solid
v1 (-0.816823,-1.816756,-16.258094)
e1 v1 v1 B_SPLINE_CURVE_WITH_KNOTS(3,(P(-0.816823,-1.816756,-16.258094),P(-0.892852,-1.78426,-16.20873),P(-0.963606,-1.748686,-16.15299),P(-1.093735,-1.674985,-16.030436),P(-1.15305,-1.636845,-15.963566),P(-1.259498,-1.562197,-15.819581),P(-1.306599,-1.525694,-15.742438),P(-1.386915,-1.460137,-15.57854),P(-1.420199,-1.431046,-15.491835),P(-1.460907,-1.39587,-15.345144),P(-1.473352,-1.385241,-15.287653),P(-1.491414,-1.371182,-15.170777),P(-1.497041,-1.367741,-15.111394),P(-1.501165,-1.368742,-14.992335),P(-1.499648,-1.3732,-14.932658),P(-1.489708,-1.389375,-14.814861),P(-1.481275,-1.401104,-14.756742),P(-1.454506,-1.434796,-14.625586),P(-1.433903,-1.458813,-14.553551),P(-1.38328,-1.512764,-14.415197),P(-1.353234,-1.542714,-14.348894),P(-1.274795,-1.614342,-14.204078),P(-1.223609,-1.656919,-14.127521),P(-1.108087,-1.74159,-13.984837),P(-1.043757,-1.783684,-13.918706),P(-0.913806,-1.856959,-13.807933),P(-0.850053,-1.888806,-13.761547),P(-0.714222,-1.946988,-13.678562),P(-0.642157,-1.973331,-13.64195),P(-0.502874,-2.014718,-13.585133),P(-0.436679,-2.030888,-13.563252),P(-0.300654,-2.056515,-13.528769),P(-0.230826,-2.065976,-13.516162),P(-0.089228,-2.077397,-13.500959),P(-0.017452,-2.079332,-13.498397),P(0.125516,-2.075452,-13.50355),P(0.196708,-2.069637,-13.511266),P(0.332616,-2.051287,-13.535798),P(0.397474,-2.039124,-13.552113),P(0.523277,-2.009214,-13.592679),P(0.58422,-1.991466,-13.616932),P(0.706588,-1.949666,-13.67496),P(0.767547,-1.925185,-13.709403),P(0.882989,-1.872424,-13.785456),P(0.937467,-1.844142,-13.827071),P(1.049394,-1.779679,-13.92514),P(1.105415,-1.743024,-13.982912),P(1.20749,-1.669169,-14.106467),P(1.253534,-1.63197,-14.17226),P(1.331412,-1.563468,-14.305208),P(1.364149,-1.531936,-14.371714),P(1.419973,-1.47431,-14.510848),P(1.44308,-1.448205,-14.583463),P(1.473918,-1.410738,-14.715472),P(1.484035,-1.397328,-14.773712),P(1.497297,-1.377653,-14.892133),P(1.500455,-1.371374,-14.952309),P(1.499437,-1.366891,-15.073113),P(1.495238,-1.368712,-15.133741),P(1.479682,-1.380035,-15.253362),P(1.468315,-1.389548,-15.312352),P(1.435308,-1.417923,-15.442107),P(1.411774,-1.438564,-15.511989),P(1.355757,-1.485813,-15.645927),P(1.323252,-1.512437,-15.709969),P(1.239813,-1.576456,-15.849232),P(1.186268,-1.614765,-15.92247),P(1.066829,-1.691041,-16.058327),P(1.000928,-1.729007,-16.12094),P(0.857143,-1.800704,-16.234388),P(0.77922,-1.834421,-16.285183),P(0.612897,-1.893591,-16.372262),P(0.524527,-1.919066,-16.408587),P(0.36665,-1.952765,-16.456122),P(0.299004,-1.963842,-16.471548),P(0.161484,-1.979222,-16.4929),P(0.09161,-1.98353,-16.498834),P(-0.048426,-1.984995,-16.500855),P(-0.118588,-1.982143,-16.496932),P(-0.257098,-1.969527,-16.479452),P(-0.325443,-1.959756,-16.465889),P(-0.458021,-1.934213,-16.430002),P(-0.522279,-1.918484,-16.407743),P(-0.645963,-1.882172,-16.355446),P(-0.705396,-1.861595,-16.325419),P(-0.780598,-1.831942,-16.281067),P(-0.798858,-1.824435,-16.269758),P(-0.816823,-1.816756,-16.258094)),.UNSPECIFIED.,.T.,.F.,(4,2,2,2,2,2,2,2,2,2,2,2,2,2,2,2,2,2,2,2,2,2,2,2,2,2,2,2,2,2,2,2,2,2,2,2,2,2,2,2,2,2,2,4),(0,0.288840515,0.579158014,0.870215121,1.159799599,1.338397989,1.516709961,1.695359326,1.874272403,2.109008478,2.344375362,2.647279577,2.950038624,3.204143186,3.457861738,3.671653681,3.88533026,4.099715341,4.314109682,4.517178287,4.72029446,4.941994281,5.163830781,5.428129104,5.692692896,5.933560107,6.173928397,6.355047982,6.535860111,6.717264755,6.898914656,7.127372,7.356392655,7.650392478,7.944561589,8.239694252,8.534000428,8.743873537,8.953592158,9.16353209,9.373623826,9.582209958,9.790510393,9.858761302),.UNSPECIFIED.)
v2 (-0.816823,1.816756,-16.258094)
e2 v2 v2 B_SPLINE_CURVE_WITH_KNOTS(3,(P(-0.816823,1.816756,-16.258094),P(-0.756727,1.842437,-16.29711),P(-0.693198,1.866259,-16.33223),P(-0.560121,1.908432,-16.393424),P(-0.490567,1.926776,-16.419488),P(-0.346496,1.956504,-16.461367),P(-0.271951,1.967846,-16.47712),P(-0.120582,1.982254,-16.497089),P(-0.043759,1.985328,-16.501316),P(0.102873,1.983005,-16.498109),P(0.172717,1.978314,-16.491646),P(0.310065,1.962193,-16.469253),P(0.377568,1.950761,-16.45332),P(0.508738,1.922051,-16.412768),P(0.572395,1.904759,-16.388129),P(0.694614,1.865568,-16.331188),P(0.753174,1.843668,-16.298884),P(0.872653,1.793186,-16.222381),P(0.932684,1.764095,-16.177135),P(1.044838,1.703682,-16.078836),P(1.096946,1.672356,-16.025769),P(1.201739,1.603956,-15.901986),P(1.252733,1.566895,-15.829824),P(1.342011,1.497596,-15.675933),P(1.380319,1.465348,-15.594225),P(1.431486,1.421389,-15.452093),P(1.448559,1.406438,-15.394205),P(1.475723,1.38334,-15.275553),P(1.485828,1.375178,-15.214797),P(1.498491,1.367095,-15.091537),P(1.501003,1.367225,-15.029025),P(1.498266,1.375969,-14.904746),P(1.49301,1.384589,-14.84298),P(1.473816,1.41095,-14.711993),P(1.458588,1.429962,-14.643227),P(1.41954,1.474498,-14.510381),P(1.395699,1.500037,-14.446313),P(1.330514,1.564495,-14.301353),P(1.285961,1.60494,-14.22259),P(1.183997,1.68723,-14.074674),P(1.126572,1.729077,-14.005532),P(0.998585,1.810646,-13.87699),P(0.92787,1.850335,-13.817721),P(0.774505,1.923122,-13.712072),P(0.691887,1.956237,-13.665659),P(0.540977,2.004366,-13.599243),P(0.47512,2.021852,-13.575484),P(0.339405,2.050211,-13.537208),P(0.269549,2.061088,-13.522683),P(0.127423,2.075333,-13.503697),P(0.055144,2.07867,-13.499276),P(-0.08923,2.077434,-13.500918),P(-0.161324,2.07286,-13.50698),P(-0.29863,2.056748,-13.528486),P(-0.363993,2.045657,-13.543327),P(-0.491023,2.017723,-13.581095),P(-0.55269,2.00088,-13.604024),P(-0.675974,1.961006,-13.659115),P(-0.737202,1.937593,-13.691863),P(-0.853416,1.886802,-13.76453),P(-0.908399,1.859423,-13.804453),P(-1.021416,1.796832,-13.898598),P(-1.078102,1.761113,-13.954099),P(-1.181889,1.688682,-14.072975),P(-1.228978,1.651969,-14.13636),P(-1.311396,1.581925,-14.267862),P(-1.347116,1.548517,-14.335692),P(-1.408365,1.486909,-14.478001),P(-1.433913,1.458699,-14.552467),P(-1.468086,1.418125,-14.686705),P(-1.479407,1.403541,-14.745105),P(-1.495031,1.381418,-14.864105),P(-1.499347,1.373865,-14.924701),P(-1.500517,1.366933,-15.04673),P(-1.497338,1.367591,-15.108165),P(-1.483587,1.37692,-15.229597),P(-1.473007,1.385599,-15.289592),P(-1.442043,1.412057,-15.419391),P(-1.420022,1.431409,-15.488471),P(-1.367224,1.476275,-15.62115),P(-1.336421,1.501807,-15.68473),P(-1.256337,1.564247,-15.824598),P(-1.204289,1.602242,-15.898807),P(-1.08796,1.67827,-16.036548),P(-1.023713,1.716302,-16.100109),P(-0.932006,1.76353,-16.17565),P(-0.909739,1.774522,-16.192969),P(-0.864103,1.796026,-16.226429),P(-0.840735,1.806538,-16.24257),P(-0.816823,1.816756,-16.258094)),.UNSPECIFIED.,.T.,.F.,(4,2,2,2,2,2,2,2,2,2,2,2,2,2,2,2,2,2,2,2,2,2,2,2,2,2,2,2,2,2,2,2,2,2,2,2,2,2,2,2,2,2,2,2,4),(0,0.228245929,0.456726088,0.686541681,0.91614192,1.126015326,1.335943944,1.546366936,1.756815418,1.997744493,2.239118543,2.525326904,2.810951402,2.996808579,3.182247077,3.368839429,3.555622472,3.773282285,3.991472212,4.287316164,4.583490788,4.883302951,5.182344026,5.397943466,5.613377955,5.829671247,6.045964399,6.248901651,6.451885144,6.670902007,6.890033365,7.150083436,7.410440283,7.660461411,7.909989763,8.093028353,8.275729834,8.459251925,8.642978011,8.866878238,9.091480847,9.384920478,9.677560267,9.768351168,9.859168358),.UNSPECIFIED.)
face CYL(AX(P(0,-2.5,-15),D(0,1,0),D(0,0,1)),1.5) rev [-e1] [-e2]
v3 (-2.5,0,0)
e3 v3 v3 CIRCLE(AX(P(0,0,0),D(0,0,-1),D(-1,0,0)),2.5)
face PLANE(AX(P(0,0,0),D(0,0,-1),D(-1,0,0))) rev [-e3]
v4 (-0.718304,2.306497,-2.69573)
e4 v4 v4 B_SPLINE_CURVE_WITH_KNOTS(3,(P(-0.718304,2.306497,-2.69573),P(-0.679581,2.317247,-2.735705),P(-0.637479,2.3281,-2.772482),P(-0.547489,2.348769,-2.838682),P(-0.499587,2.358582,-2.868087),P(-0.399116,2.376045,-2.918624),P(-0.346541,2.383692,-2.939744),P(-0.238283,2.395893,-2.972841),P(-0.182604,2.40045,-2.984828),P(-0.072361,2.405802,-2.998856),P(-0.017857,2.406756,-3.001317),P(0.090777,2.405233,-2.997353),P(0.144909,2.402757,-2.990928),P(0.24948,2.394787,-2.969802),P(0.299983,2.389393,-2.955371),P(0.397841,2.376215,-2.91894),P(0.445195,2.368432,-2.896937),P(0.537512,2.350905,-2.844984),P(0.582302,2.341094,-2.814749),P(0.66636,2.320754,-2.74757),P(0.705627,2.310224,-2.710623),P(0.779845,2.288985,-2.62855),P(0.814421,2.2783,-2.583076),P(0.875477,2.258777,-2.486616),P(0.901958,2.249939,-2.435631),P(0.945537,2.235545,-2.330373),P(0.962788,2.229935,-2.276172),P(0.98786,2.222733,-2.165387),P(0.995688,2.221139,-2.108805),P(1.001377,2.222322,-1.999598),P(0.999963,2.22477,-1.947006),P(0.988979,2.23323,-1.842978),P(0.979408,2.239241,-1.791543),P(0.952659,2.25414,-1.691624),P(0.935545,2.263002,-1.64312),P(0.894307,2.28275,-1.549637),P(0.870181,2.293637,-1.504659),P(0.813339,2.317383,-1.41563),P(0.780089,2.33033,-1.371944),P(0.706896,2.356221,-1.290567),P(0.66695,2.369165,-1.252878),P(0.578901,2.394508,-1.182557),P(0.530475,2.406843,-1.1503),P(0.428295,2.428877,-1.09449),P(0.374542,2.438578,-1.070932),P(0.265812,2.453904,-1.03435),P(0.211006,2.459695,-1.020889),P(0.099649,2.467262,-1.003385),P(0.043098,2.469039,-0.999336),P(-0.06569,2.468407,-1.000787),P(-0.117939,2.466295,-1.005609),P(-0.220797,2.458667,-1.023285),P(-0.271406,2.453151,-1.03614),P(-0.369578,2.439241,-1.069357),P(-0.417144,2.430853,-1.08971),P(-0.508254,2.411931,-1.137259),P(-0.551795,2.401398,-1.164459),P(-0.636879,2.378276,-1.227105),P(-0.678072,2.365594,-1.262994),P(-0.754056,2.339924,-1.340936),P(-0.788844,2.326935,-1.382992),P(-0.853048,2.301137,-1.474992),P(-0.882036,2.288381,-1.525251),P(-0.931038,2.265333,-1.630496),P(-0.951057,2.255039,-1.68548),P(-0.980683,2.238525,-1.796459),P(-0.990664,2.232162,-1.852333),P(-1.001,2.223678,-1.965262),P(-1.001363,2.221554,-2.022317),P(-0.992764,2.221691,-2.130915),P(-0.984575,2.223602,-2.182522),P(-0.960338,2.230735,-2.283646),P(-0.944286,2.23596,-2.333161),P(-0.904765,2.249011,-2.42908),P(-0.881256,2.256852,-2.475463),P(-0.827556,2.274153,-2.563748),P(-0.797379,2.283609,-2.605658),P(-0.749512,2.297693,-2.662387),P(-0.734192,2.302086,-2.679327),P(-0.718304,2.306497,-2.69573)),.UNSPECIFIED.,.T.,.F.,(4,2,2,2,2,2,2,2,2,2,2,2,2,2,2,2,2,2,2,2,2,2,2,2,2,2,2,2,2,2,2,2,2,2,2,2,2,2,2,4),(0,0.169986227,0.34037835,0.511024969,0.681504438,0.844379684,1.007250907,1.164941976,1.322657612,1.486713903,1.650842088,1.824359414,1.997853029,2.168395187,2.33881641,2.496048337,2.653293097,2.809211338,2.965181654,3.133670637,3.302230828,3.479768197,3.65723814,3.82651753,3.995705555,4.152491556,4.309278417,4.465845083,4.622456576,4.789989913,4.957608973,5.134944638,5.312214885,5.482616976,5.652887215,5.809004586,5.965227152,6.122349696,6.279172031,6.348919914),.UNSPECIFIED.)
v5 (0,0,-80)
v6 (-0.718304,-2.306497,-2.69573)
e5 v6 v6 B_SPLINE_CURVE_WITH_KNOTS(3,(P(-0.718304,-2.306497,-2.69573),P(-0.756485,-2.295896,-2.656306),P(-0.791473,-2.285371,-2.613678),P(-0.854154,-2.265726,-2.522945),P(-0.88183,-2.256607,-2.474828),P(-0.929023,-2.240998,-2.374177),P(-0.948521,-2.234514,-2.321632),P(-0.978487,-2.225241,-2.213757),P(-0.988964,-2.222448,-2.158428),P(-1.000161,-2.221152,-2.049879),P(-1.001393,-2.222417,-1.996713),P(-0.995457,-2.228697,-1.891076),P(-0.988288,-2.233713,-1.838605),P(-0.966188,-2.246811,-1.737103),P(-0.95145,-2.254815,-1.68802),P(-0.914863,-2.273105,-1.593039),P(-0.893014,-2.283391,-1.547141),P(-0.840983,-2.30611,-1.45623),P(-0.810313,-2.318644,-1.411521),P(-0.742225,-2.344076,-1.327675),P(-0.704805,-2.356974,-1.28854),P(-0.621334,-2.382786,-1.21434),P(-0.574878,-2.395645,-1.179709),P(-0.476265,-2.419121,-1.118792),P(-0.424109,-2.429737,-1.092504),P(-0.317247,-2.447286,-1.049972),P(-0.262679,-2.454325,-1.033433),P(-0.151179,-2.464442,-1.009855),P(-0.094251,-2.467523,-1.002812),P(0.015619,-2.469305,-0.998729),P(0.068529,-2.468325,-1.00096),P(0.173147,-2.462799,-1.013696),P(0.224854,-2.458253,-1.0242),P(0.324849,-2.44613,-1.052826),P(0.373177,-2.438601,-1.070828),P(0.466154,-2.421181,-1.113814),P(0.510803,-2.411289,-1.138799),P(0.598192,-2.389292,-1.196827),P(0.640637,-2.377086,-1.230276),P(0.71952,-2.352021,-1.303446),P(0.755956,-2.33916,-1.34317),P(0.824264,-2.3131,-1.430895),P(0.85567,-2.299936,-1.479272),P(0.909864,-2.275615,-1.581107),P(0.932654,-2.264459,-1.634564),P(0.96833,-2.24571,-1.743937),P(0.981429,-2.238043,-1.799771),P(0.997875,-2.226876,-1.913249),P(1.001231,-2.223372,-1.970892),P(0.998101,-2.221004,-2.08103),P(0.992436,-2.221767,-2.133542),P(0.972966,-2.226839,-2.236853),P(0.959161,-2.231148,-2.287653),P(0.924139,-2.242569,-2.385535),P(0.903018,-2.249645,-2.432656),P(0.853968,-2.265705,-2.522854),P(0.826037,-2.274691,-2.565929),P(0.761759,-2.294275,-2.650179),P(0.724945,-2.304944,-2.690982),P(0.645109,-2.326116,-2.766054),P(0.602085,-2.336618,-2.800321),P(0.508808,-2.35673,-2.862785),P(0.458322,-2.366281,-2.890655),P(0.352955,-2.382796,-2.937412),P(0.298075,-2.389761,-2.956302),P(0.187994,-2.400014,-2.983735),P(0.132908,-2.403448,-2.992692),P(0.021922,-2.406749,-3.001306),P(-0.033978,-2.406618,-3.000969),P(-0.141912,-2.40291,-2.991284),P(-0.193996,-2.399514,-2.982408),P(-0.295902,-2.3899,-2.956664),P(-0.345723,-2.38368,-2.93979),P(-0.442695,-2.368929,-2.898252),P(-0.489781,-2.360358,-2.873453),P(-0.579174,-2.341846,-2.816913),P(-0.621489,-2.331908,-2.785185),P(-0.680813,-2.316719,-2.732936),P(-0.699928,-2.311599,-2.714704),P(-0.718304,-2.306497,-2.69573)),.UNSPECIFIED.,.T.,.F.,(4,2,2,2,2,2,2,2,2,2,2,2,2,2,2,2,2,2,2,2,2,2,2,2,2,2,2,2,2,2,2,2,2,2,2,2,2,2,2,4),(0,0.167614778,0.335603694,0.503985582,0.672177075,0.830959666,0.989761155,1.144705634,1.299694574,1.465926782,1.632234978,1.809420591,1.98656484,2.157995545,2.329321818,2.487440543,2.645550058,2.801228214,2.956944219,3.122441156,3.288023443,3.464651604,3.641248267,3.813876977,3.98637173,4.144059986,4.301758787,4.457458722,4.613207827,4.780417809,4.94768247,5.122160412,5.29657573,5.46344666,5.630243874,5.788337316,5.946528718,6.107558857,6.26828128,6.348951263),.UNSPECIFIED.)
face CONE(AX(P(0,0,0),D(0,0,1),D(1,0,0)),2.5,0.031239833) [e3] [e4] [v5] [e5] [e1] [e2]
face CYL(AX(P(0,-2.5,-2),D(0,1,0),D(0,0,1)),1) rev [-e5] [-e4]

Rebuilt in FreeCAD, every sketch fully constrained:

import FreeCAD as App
import Part
import Sketcher

V = App.Vector

doc = App.newDocument("Part")
params = doc.addObject("Spreadsheet::Sheet", "Params")
for row, (alias, value) in enumerate([
    ("sketch1_height", "80 mm"),
    ("sketch1_width", "2.5 mm"),
    ("revolution_angle", "360 deg"),
    ("sketch2_diameter", "3 mm"),
    ("sketch3_diameter", "2 mm"),
], start=1):
    params.set(f"A{row}", alias)
    params.set(f"B{row}", "=" + value)
    params.setAlias(f"B{row}", alias)

body = doc.addObject("PartDesign::Body", "Body")

# Sketch on XZ plane
sketch1 = body.newObject("Sketcher::SketchObject", "Sketch")
sketch1.AttachmentSupport = (doc.getObject("XZ_Plane"), [""])
sketch1.MapMode = "FlatFace"
sketch1.addGeometry(Part.LineSegment(V(0, 0, 0), V(2.5, 0, 0)), False)
sketch1.addGeometry(Part.LineSegment(V(2.5, 0, 0), V(0, -80, 0)), False)
sketch1.addGeometry(Part.LineSegment(V(0, -80, 0), V(0, 0, 0)), False)
sketch1.addConstraint(Sketcher.Constraint("Coincident", 0, 2, 1, 1))
sketch1.addConstraint(Sketcher.Constraint("Coincident", 1, 2, 2, 1))
sketch1.addConstraint(Sketcher.Constraint("Coincident", 2, 2, 0, 1))
sketch1.addConstraint(Sketcher.Constraint("Horizontal", 0))
sketch1.addConstraint(Sketcher.Constraint("Vertical", 2))
sketch1.addConstraint(Sketcher.Constraint("Coincident", 2, 2, -1, 1))
sketch1.addConstraint(Sketcher.Constraint("DistanceY", 2, 1, 2, 2, 80.0))
sketch1.addConstraint(Sketcher.Constraint("DistanceX", 0, 1, 0, 2, 2.5))
sketch1.setExpression("Constraints[6]", "Params.sketch1_height")
sketch1.setExpression("Constraints[7]", "Params.sketch1_width")
revolution = body.newObject("PartDesign::Revolution", "Revolution")
revolution.Profile = sketch1
revolution.ReferenceAxis = (sketch1, ["V_Axis"])
revolution.setExpression("Angle", "Params.revolution_angle")

# Sketch on XZ plane
sketch2 = body.newObject("Sketcher::SketchObject", "Sketch001")
sketch2.AttachmentSupport = (doc.getObject("XZ_Plane"), [""])
sketch2.MapMode = "FlatFace"
sketch2.addGeometry(Part.Circle(V(0, -15, 0), V(0, 0, 1), 1.5), False)
sketch2.addConstraint(Sketcher.Constraint("PointOnObject", 0, 3, -2))
sketch2.addConstraint(Sketcher.Constraint("Diameter", 0, 3.0))
sketch2.addConstraint(Sketcher.Constraint("DistanceY", 0, 3, -1, 1, 15.0))
sketch2.setExpression("Constraints[1]", "Params.sketch2_diameter")
pocket1 = body.newObject("PartDesign::Pocket", "Pocket")
pocket1.Profile = sketch2
pocket1.Type = "ThroughAll"
pocket1.Midplane = True

# Sketch on XZ plane
sketch3 = body.newObject("Sketcher::SketchObject", "Sketch002")
sketch3.AttachmentSupport = (doc.getObject("XZ_Plane"), [""])
sketch3.MapMode = "FlatFace"
sketch3.addGeometry(Part.Circle(V(0, -2, 0), V(0, 0, 1), 1), False)
sketch3.addConstraint(Sketcher.Constraint("PointOnObject", 0, 3, -2))
sketch3.addConstraint(Sketcher.Constraint("Diameter", 0, 2.0))
sketch3.addConstraint(Sketcher.Constraint("DistanceY", 0, 3, -1, 1, 2.0))
sketch3.setExpression("Constraints[1]", "Params.sketch3_diameter")
pocket2 = body.newObject("PartDesign::Pocket", "Pocket001")
pocket2.Profile = sketch3
pocket2.Type = "ThroughAll"
pocket2.Midplane = True

doc.recompute()
